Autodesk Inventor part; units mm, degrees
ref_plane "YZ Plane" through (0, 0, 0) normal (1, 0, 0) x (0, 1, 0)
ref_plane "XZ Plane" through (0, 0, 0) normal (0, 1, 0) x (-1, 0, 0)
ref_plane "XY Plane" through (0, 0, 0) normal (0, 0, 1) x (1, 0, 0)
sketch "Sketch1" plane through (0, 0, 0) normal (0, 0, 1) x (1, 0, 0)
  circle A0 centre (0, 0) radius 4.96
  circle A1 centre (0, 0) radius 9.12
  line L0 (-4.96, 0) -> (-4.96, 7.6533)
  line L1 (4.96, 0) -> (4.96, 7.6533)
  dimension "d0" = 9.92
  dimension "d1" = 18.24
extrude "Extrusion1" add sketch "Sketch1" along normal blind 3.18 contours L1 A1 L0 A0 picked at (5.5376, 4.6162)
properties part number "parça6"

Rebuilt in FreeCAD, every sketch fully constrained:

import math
import FreeCAD as App
import Part
import Sketcher

V = App.Vector

doc = App.newDocument("Part")
body = doc.addObject("PartDesign::Body", "Body")

# Sketch on XY plane
sketch1 = body.newObject("Sketcher::SketchObject", "Sketch")
sketch1.AttachmentSupport = (doc.getObject("XY_Plane"), [""])
sketch1.MapMode = "FlatFace"
sketch1.addGeometry([
    Part.LineSegment(V(5, 7.7, 0), V(5, 0, 0)),
    Part.ArcOfCircle(Part.Circle(V(0, 0, 0), V(0, 0, 1), 5), math.radians(180), math.radians(360)),
    Part.LineSegment(V(-5, 0, 0), V(-5, 7.7, 0)),
    Part.ArcOfCircle(Part.Circle(V(0, 0, 0), V(0, 0, 1), 9.1), math.radians(123), math.radians(417)),
], False)
sketch1.addConstraint([
    Sketcher.Constraint("Tangent", 0, 2, 1, 2),
    Sketcher.Constraint("Tangent", 1, 1, 2, 1),
    Sketcher.Constraint("Coincident", 2, 2, 3, 1),
    Sketcher.Constraint("Coincident", 3, 2, 0, 1),
    Sketcher.Constraint("Vertical", 0),
    Sketcher.Constraint("Vertical", 2),
    Sketcher.Constraint("Coincident", 1, 3, -1, 1),
    Sketcher.Constraint("Coincident", 3, 3, -1, 1),
    Sketcher.Constraint("Radius", 1, 4.96),
    Sketcher.Constraint("Radius", 3, 9.12),
])
pad1 = body.newObject("PartDesign::Pad", "Pad")
pad1.Profile = sketch1
pad1.Length = 3.18

doc.recompute()
